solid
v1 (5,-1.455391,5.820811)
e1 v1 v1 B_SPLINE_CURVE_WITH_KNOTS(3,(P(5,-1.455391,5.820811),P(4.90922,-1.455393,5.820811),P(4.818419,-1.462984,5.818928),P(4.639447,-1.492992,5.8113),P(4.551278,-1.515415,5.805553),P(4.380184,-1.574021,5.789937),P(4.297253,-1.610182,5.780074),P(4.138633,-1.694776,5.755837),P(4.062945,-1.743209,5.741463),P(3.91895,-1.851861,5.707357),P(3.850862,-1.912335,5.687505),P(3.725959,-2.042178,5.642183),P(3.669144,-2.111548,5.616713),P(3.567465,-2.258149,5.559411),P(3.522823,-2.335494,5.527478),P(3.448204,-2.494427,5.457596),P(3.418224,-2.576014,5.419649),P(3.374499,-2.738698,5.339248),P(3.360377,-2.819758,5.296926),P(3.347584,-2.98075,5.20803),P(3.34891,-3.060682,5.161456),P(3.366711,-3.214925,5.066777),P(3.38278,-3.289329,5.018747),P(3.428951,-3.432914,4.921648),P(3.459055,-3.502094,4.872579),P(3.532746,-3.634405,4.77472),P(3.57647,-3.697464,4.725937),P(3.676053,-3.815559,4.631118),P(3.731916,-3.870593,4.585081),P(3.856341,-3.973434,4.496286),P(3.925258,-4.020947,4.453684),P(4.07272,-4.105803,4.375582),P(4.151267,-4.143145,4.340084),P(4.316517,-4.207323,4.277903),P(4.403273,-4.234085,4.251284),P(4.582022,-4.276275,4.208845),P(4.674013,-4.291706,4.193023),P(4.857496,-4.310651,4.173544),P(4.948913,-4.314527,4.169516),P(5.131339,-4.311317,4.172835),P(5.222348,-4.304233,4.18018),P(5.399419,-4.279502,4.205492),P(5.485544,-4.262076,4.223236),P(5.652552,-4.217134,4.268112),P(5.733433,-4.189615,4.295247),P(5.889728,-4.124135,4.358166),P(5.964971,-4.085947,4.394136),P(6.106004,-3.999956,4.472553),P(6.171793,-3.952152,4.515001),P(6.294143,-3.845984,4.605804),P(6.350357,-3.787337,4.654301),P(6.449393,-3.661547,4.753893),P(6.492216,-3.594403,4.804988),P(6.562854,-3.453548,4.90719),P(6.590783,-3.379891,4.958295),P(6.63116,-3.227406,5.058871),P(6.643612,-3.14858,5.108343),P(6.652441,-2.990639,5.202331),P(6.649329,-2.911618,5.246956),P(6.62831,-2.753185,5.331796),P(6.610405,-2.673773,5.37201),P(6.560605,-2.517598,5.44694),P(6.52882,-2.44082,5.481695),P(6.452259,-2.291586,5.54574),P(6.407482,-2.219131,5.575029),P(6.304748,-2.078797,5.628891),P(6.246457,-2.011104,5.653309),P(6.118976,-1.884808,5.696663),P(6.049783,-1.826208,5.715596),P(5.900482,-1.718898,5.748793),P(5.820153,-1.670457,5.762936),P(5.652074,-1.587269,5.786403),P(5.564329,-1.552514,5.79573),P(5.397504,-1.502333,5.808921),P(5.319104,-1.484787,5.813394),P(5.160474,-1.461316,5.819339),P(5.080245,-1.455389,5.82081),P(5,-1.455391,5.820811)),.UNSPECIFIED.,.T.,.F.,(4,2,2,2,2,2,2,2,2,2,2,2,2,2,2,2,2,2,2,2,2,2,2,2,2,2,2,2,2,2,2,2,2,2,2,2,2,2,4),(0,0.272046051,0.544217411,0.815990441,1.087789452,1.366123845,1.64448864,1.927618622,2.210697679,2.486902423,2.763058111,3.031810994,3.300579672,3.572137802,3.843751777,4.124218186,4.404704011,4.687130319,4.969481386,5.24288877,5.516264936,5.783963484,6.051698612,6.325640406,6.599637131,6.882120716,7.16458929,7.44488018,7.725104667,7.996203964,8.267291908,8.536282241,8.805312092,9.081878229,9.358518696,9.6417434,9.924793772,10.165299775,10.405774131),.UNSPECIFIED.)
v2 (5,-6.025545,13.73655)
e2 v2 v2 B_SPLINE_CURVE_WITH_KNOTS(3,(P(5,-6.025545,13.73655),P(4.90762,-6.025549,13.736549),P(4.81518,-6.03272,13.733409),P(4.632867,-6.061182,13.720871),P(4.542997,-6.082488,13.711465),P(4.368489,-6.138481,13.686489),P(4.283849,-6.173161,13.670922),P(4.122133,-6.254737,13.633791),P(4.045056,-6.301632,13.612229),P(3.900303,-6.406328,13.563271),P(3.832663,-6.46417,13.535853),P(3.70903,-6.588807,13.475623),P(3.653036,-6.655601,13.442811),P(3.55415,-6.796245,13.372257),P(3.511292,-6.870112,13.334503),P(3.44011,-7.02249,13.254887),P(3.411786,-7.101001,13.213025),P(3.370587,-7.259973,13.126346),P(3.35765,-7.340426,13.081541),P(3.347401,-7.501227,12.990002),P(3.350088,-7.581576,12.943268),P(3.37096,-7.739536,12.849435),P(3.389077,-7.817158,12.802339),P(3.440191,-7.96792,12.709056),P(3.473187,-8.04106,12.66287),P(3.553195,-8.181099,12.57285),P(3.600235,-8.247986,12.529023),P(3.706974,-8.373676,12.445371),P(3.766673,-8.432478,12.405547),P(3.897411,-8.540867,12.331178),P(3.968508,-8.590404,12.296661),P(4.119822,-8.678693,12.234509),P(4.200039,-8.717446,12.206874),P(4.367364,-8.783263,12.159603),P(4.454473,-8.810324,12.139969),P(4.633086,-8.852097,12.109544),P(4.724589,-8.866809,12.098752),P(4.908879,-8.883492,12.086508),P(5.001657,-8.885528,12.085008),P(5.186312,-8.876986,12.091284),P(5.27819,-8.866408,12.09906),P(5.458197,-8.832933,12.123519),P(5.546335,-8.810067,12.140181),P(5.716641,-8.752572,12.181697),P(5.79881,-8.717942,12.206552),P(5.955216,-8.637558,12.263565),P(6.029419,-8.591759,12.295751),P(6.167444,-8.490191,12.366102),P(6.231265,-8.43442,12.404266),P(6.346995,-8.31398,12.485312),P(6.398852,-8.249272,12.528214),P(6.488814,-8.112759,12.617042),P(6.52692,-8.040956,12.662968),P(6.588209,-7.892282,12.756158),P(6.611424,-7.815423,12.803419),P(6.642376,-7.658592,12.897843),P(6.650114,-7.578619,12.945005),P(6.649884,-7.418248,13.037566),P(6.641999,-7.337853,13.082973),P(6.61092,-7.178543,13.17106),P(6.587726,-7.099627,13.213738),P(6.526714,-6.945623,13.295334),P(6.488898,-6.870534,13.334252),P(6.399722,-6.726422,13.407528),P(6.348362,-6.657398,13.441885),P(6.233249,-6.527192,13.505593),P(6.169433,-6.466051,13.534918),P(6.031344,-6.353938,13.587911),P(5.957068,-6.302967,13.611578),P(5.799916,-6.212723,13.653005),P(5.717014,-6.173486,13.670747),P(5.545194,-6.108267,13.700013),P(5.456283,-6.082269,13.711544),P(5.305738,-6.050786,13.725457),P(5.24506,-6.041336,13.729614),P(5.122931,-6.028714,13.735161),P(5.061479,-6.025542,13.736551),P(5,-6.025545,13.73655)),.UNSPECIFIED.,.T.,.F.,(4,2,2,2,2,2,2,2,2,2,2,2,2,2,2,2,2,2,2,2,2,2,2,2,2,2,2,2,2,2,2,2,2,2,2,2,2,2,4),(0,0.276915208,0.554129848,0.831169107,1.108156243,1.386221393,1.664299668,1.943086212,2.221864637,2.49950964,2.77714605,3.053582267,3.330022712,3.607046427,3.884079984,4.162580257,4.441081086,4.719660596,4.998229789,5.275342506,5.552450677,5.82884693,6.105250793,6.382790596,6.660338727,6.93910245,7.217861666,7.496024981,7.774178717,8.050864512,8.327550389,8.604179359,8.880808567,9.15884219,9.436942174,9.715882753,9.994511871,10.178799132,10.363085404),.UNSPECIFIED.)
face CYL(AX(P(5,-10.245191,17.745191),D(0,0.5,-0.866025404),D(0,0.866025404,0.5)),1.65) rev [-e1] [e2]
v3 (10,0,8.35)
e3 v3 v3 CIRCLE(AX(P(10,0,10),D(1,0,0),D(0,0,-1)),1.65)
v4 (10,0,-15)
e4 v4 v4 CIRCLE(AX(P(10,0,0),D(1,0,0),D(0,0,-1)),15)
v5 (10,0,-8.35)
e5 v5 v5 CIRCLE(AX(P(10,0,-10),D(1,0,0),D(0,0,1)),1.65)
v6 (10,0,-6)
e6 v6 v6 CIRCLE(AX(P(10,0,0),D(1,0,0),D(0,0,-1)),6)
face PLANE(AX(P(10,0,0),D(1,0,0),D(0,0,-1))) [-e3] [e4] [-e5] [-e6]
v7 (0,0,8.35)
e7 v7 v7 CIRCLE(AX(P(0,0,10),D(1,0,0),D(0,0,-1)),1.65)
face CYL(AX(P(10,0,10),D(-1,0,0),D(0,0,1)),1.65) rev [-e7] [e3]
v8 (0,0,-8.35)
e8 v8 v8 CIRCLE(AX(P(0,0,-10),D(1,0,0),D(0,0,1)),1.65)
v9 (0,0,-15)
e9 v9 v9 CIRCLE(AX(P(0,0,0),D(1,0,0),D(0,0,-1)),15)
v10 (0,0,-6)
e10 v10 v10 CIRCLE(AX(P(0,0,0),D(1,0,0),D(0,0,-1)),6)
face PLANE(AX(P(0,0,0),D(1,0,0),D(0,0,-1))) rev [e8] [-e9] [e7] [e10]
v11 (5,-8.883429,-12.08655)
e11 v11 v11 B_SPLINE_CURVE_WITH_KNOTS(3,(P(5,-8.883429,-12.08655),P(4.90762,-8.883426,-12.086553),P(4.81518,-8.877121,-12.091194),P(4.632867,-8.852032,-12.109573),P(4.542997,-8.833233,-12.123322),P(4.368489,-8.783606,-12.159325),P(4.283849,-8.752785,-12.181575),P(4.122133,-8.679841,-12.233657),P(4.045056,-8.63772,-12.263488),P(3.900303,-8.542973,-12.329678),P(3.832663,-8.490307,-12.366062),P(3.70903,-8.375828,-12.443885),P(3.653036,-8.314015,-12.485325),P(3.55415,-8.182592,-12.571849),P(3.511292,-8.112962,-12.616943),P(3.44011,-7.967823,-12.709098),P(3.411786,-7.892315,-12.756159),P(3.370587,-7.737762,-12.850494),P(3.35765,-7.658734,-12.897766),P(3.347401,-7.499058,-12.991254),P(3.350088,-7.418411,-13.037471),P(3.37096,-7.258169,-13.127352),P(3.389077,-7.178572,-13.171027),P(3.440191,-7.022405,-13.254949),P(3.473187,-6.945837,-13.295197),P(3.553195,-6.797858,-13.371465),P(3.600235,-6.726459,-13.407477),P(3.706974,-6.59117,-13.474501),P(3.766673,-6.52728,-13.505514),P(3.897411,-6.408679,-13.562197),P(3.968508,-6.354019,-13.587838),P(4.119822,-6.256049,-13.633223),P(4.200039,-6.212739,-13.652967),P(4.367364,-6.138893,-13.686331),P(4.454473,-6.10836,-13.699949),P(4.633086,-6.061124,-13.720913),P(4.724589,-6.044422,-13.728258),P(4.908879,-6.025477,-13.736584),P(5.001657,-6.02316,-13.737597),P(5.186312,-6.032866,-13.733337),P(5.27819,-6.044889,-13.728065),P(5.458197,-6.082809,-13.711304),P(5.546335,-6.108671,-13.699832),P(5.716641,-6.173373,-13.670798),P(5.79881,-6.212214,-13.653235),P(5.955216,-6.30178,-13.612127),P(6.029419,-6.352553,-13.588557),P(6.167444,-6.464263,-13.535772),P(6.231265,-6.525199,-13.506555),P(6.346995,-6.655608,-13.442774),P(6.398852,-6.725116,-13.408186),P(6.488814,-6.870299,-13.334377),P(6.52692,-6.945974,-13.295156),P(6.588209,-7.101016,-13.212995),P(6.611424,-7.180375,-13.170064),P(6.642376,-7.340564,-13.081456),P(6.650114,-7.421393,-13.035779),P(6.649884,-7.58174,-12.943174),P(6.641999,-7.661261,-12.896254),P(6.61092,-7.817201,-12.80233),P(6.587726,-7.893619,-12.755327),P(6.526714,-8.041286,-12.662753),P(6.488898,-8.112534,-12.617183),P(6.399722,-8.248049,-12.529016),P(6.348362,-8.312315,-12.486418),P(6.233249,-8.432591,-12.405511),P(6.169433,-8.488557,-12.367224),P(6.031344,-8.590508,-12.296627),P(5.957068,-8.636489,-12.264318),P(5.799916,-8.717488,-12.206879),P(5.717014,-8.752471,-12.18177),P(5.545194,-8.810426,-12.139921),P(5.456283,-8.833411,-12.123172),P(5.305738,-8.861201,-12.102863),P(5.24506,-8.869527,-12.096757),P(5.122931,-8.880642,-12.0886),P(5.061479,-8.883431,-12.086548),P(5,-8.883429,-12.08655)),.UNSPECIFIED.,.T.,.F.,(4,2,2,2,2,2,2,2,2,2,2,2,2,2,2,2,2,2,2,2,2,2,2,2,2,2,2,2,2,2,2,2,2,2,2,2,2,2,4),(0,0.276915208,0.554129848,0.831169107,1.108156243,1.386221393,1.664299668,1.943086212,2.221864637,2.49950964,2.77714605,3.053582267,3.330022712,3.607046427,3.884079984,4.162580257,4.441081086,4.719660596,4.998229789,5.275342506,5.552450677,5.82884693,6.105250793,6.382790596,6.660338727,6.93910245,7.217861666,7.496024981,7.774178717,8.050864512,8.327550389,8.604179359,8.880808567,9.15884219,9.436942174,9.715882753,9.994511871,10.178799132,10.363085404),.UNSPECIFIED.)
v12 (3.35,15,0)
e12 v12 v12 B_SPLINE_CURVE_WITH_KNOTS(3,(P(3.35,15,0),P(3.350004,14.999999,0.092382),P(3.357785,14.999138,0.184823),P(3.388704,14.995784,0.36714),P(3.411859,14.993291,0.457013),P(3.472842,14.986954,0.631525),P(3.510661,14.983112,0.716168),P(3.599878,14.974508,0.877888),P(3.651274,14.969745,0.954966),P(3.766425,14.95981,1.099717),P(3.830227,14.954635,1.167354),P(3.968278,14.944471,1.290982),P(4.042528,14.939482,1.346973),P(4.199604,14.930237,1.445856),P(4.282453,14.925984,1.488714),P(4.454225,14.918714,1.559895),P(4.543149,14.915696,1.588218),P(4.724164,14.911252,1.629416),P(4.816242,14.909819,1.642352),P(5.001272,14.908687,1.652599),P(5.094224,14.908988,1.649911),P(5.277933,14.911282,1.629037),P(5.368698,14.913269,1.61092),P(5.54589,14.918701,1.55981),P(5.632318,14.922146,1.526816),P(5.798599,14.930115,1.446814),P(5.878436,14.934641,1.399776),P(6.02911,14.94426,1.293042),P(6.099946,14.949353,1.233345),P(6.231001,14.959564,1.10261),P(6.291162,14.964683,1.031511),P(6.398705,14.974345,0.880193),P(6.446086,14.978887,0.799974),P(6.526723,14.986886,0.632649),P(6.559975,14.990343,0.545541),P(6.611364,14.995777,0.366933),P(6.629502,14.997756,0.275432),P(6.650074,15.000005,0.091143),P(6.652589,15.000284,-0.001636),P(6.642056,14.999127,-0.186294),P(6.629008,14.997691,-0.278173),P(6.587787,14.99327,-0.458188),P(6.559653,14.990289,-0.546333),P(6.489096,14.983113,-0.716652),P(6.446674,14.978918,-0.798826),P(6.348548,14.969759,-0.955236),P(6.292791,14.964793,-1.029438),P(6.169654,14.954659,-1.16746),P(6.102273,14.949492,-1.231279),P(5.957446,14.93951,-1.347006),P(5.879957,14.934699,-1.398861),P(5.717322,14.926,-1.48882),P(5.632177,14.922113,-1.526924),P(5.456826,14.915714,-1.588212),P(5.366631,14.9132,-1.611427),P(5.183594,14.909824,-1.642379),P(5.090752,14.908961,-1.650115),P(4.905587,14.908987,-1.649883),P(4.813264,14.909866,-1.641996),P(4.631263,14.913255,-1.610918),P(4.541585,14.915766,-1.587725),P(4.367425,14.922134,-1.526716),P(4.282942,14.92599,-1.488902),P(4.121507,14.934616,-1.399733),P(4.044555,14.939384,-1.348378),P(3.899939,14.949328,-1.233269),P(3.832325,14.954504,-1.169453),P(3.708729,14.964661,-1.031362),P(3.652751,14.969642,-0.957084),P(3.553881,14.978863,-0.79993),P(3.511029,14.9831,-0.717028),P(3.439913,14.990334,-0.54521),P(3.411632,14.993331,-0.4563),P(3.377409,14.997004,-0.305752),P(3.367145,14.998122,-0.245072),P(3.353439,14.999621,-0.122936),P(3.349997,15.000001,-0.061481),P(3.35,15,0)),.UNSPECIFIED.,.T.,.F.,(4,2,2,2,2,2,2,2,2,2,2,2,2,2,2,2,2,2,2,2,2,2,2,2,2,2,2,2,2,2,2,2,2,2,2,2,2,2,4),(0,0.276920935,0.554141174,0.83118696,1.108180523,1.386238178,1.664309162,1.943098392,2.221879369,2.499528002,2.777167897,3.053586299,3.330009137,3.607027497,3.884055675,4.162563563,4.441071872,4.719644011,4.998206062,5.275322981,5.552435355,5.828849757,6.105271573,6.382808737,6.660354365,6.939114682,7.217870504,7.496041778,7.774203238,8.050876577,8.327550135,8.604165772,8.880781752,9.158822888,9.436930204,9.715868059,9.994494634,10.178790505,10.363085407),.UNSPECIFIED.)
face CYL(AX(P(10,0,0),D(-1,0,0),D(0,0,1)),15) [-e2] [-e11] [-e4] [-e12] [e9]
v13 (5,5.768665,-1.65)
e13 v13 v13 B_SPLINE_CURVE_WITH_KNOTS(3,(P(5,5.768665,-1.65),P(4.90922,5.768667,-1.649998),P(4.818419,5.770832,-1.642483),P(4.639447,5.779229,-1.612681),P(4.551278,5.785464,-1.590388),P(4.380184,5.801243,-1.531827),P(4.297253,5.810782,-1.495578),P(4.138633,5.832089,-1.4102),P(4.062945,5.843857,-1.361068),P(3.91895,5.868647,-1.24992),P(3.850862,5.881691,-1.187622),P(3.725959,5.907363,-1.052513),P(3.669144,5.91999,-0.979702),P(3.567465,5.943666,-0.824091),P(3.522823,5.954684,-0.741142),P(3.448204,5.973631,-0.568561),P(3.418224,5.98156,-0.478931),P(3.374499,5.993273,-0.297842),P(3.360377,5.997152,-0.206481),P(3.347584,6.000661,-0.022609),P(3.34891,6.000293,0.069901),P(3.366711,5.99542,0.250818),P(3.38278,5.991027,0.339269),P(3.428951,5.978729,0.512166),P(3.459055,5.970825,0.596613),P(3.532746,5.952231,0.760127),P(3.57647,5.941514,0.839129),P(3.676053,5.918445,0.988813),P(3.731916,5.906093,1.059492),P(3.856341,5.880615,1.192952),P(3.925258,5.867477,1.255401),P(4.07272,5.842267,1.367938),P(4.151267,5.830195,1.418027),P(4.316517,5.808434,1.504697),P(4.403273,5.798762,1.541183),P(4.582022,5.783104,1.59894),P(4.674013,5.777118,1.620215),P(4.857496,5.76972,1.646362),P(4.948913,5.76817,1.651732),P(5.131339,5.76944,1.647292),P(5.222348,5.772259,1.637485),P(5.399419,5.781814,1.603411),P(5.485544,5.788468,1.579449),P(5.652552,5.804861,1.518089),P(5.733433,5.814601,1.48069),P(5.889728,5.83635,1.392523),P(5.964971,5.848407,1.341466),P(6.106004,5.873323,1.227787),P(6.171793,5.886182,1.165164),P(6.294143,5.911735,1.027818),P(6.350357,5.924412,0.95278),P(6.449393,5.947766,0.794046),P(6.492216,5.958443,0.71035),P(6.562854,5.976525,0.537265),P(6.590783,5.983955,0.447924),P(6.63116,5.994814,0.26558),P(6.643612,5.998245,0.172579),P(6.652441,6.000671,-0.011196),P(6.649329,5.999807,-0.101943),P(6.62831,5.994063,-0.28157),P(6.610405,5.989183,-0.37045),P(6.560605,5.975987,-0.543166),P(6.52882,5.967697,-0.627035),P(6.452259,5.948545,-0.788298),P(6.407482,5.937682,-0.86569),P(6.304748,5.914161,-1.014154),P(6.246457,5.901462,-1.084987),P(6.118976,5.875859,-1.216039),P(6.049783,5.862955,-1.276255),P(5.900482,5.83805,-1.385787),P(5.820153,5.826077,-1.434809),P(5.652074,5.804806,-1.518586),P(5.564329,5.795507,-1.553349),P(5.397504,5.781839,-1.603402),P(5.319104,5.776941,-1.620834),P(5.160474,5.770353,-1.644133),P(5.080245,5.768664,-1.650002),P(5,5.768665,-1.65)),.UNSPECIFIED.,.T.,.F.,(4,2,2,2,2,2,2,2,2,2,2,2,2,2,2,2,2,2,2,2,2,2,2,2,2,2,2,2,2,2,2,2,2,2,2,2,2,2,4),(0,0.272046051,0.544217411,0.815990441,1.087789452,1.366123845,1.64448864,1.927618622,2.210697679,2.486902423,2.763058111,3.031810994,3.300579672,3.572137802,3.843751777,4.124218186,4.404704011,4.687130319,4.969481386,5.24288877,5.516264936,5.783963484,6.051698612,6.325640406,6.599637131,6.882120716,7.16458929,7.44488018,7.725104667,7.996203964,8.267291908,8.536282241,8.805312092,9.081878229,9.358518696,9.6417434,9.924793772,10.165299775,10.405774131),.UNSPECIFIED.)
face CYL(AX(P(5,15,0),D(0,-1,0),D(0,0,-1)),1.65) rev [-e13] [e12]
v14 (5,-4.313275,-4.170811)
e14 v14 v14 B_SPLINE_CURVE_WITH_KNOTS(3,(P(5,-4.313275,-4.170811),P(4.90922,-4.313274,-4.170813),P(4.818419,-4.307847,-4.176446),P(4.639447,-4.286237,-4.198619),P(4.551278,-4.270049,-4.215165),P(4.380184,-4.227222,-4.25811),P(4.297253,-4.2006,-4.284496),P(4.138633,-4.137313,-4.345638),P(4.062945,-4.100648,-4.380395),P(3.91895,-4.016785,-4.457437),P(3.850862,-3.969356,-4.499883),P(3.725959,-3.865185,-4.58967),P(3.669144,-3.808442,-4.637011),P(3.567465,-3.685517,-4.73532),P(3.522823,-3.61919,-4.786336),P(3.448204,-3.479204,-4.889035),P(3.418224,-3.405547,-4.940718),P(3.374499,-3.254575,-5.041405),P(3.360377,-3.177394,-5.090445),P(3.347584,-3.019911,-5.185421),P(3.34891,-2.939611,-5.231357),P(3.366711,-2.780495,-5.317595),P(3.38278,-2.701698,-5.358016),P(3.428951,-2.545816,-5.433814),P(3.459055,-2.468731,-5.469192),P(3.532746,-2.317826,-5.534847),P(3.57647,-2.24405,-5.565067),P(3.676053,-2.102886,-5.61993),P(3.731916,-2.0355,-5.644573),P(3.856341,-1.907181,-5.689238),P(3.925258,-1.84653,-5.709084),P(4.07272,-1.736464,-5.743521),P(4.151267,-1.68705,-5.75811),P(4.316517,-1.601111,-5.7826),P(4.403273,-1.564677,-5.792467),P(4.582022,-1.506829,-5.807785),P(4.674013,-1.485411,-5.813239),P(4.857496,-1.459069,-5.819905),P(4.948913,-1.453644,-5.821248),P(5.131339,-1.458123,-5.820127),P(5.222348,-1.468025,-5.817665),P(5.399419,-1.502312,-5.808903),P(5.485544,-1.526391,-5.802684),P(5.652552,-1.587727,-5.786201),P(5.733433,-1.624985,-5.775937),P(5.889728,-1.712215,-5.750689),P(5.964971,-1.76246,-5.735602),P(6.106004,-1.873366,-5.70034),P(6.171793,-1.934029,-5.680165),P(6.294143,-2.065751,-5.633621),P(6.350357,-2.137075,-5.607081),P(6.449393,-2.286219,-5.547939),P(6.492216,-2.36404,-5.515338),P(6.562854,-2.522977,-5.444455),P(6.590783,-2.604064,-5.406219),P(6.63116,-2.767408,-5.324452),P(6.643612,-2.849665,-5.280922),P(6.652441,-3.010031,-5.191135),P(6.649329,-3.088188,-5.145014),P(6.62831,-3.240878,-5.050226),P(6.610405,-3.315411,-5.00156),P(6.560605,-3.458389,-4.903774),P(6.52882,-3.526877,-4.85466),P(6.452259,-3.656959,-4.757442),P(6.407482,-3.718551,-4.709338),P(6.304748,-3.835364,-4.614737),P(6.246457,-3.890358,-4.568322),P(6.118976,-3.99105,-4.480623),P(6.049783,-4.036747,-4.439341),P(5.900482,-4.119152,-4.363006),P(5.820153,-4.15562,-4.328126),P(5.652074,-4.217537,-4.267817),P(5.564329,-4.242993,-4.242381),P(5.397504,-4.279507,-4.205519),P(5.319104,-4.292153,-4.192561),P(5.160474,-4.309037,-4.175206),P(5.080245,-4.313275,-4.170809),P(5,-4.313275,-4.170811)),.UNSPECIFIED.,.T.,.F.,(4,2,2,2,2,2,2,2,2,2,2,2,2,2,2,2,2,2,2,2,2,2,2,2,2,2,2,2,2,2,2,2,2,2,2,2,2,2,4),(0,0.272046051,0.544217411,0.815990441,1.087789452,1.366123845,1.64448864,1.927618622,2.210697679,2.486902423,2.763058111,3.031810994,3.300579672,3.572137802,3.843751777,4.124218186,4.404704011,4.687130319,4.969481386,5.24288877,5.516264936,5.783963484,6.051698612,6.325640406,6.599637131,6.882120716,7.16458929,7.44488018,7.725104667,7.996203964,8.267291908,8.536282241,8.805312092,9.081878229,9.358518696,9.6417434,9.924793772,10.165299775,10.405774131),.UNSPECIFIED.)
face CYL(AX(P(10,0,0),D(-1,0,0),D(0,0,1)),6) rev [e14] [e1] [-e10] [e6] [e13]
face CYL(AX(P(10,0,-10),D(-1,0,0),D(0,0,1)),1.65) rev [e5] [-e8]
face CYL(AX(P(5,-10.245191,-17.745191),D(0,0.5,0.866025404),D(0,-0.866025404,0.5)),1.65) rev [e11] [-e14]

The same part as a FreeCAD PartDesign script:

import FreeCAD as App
import Part
import Sketcher
Q = App.Units.Quantity

doc = App.newDocument("Part")
body = doc.addObject("PartDesign::Body", "Body")

sketch1 = doc.addObject("Sketcher::SketchObject", "Sketch")
body.addObject(sketch1)
sketch1.AttachmentSupport = (doc.YZ_Plane, [""])
sketch1.MapMode = "FlatFace"
sketch1.addGeometry([
    Part.Circle(App.Vector(0, 0, 0), App.Vector(0, 0, 1), 15),
    Part.Circle(App.Vector(0, 10, 0), App.Vector(0, 0, 1), 1.65),
    Part.Circle(App.Vector(0, 0, 0), App.Vector(0, 0, 1), 6),
    Part.Circle(App.Vector(0, -10, 0), App.Vector(0, 0, 1), 1.65),
], False)
sketch1.addConstraint([
    Sketcher.Constraint("Coincident", 0, 3, -1, 1),
    Sketcher.Constraint("Coincident", 2, 3, -1, 1),
    Sketcher.Constraint("Equal", 1, 3),
    Sketcher.Constraint("Symmetric", 1, 3, 3, 3, -1, 1),
    Sketcher.Constraint("PointOnObject", 1, 3, -2),
    Sketcher.Constraint("Diameter", 0, Q("30 mm")),
    Sketcher.Constraint("Diameter", 2, Q("12 mm")),
    Sketcher.Constraint("Diameter", 1, Q("3.3 mm")),
    Sketcher.Constraint("DistanceY", -1, 1, 1, 3, Q("10 mm")),
])
pad1 = doc.addObject("PartDesign::Pad", "Pad")
body.addObject(pad1)
pad1.Profile = sketch1
pad1.Length = 10

sketch2 = doc.addObject("Sketcher::SketchObject", "Sketch001")
body.addObject(sketch2)
sketch2.AttachmentSupport = (doc.XZ_Plane, [""])
sketch2.MapMode = "FlatFace"
sketch2.addGeometry(Part.Circle(App.Vector(5, 0, 0), App.Vector(0, 0, 1), 1.65), False)
sketch2.addConstraint([
    Sketcher.Constraint("PointOnObject", 0, 3, -1),
    Sketcher.Constraint("Diameter", 0, Q("3.3 mm")),
    Sketcher.Constraint("DistanceX", -1, 1, 0, 3, Q("5 mm")),
])
pocket1 = doc.addObject("PartDesign::Pocket", "Pocket")
body.addObject(pocket1)
pocket1.Profile = sketch2
pocket1.Type = "ThroughAll"
doc.recompute()

polarpattern = doc.addObject("PartDesign::PolarPattern", "PolarPattern")
body.addObject(polarpattern)
polarpattern.Originals = [pocket1]
polarpattern.Axis = (doc.X_Axis, [""])
polarpattern.Angle = 360
polarpattern.Occurrences = 3
body.Tip = polarpattern

doc.recompute()
